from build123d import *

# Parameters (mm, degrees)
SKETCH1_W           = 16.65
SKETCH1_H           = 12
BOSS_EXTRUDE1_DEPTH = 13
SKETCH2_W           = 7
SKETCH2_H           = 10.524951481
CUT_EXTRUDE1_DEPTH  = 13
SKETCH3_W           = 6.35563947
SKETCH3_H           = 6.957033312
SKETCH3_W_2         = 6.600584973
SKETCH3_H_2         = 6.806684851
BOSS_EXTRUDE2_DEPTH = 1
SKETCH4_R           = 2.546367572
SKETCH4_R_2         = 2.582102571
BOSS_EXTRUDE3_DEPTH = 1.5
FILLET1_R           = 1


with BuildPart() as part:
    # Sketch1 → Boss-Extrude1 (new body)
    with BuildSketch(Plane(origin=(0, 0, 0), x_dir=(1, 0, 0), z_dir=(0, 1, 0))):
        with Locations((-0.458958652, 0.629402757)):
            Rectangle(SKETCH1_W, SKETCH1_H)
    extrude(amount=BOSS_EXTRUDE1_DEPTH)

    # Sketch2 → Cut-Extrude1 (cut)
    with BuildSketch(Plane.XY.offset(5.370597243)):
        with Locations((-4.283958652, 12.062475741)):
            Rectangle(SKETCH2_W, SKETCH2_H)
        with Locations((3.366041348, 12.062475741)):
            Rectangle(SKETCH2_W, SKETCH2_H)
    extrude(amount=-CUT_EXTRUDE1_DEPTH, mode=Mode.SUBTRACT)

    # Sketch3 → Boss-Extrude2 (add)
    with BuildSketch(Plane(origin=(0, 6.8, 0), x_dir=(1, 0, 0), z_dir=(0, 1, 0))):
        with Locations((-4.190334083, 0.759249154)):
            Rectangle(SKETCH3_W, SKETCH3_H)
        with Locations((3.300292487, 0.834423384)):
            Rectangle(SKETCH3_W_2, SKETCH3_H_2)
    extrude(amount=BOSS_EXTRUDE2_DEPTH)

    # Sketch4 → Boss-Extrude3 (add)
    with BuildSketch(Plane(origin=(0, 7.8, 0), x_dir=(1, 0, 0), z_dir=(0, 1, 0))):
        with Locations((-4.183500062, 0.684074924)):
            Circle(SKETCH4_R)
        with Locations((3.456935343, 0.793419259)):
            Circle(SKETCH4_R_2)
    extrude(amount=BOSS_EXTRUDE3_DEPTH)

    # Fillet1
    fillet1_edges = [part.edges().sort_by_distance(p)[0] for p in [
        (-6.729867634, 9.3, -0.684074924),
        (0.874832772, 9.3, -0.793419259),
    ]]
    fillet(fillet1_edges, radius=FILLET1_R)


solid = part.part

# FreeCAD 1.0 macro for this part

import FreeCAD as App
import Part
import Sketcher

V = App.Vector
Q = App.Units.Quantity


def edges_at(feature, points):
    """Names of the edges that pass closest to the given points."""
    edges = feature.Shape.Edges
    near = lambda p: min(range(len(edges)), key=lambda i: edges[i].distToShape(Part.Vertex(*p))[0])
    return sorted({f"Edge{near(p) + 1}" for p in points})


def add_polygon(sketch, points):
    """Adds a closed chain of lines whose ends are joined by coincident constraints."""
    first, n = sketch.GeometryCount, len(points)
    for a, b in zip(points, points[1:] + points[:1]):
        sketch.addGeometry(Part.LineSegment(App.Vector(*a, 0), App.Vector(*b, 0)), False)
    for i in range(n):
        sketch.addConstraint(Sketcher.Constraint("Coincident", first + i, 2, first + (i + 1) % n, 1))

doc = App.newDocument("Part")
body = doc.addObject("PartDesign::Body", "Body")

# Sketch on XZ plane
sketch1 = body.newObject("Sketcher::SketchObject", "Sketch")
sketch1.AttachmentSupport = (doc.getObject("XZ_Plane"), [""])
sketch1.MapMode = "FlatFace"
add_polygon(sketch1, [(-8.783959, -6.629403), (-8.783959, 5.370597), (7.866041, 5.370597), (7.866041, -6.629403)])  # lines 0-3
sketch1.addConstraint([
    Sketcher.Constraint("Vertical", 0),
    Sketcher.Constraint("Horizontal", 1),
    Sketcher.Constraint("Vertical", 2),
    Sketcher.Constraint("Horizontal", 3),
    Sketcher.Constraint("DistanceY", 0, 1, 0, 2, Q("12 mm")),
    Sketcher.Constraint("DistanceX", 1, 1, 1, 2, Q("16.65 mm")),
    Sketcher.Constraint("DistanceX", 0, 2, -1, 1, Q("8.783959 mm")),
    Sketcher.Constraint("DistanceY", -1, 1, 0, 2, Q("5.370597 mm")),
])
pad1 = body.newObject("PartDesign::Pad", "Pad")
pad1.Profile = sketch1
pad1.Length = 13
pad1.Reversed = True

# Sketch on XY plane
sketch2 = body.newObject("Sketcher::SketchObject", "Sketch001")
sketch2.AttachmentSupport = (doc.getObject("XY_Plane"), [""])
sketch2.MapMode = "FlatFace"
sketch2.AttachmentOffset = App.Placement(V(0, 0, 5.370597), App.Rotation())
add_polygon(sketch2, [(-7.783959, 17.324951), (-7.783959, 6.8), (-0.783959, 6.8), (-0.783959, 17.324951)])  # lines 0-3
add_polygon(sketch2, [(-0.133959, 17.324951), (-0.133959, 6.8), (6.866041, 6.8), (6.866041, 17.324951)])  # lines 4-7
sketch2.addConstraint([
    Sketcher.Constraint("Vertical", 0),
    Sketcher.Constraint("Horizontal", 1),
    Sketcher.Constraint("Vertical", 2),
    Sketcher.Constraint("Horizontal", 3),
    Sketcher.Constraint("Vertical", 4),
    Sketcher.Constraint("Horizontal", 5),
    Sketcher.Constraint("Vertical", 6),
    Sketcher.Constraint("Horizontal", 7),
    Sketcher.Constraint("Horizontal", 1, 2, 4, 2),
    Sketcher.Constraint("Horizontal", 3, 2, 6, 2),
    Sketcher.Constraint("Equal", 3, 5),
    Sketcher.Constraint("DistanceX", 1, 1, 1, 2, Q("7 mm")),
    Sketcher.Constraint("DistanceY", -1, 1, 0, 2, Q("6.8 mm")),
    Sketcher.Constraint("DistanceX", 1, 2, 4, 2, Q("0.65 mm")),
    Sketcher.Constraint("DistanceY", 0, 2, 0, 1, Q("10.524951 mm")),
    Sketcher.Constraint("DistanceX", 0, 2, -1, 1, Q("7.783959 mm")),
])
pocket1 = body.newObject("PartDesign::Pocket", "Pocket")
pocket1.Profile = sketch2
pocket1.Length = 13

# Sketch on XZ plane
sketch3 = body.newObject("Sketcher::SketchObject", "Sketch002")
sketch3.AttachmentSupport = (doc.getObject("XZ_Plane"), [""])
sketch3.MapMode = "FlatFace"
sketch3.AttachmentOffset = App.Placement(V(0, 0, -6.8), App.Rotation())
add_polygon(sketch3, [(-7.368154, -4.237766), (-7.368154, 2.719268), (-1.012514, 2.719268), (-1.012514, -4.237766)])  # lines 0-3
add_polygon(sketch3, [(0, -4.237766), (0, 2.568919), (6.600585, 2.568919), (6.600585, -4.237766)])  # lines 4-7
sketch3.addConstraint([
    Sketcher.Constraint("Vertical", 0),
    Sketcher.Constraint("Horizontal", 1),
    Sketcher.Constraint("Vertical", 2),
    Sketcher.Constraint("Horizontal", 3),
    Sketcher.Constraint("Vertical", 4),
    Sketcher.Constraint("Horizontal", 5),
    Sketcher.Constraint("Vertical", 6),
    Sketcher.Constraint("Horizontal", 7),
    Sketcher.Constraint("PointOnObject", 4, 2, -2),
    Sketcher.Constraint("Horizontal", 3, 2, 6, 2),
    Sketcher.Constraint("DistanceX", 1, 1, 1, 2, Q("6.355639 mm")),
    Sketcher.Constraint("DistanceX", 1, 2, 5, 2, Q("7.613099 mm")),
    Sketcher.Constraint("DistanceX", 5, 1, 5, 2, Q("6.600585 mm")),
    Sketcher.Constraint("DistanceY", 0, 1, 0, 2, Q("6.957033 mm")),
    Sketcher.Constraint("DistanceY", 4, 1, 4, 2, Q("6.806685 mm")),
    Sketcher.Constraint("DistanceY", -1, 1, 4, 2, Q("2.568919 mm")),
])
pad2 = body.newObject("PartDesign::Pad", "Pad001")
pad2.Profile = sketch3
pad2.Length = 1
pad2.Reversed = True

# Sketch on XZ plane
sketch4 = body.newObject("Sketcher::SketchObject", "Sketch003")
sketch4.AttachmentSupport = (doc.getObject("XZ_Plane"), [""])
sketch4.MapMode = "FlatFace"
sketch4.AttachmentOffset = App.Placement(V(0, 0, -7.8), App.Rotation())
sketch4.addGeometry([
    Part.Circle(V(-4.1835, -0.684075, 0), V(0, 0, 1), 2.546368),
    Part.Circle(V(3.456935, -0.793419, 0), V(0, 0, 1), 2.582103),
], False)
sketch4.addConstraint([
    Sketcher.Constraint("Diameter", 0, Q("5.092735 mm")),
    Sketcher.Constraint("Diameter", 1, Q("5.164205 mm")),
    Sketcher.Constraint("DistanceX", 0, 3, -1, 1, Q("4.1835 mm")),
    Sketcher.Constraint("DistanceY", 1, 3, -1, 1, Q("0.793419 mm")),
    Sketcher.Constraint("DistanceY", 0, 3, -1, 1, Q("0.684075 mm")),
    Sketcher.Constraint("DistanceX", -1, 1, 1, 3, Q("3.456935 mm")),
])
pad3 = body.newObject("PartDesign::Pad", "Pad002")
pad3.Profile = sketch4
pad3.Length = 1.5
pad3.Reversed = True
doc.recompute()

fillet = body.newObject("PartDesign::Fillet", "Fillet")
fillet.Base = (pad3, edges_at(pad3, [(-6.73, 9.3, -0.684), (0.875, 9.3, -0.793)]))
fillet.Radius = 1

doc.recompute()
